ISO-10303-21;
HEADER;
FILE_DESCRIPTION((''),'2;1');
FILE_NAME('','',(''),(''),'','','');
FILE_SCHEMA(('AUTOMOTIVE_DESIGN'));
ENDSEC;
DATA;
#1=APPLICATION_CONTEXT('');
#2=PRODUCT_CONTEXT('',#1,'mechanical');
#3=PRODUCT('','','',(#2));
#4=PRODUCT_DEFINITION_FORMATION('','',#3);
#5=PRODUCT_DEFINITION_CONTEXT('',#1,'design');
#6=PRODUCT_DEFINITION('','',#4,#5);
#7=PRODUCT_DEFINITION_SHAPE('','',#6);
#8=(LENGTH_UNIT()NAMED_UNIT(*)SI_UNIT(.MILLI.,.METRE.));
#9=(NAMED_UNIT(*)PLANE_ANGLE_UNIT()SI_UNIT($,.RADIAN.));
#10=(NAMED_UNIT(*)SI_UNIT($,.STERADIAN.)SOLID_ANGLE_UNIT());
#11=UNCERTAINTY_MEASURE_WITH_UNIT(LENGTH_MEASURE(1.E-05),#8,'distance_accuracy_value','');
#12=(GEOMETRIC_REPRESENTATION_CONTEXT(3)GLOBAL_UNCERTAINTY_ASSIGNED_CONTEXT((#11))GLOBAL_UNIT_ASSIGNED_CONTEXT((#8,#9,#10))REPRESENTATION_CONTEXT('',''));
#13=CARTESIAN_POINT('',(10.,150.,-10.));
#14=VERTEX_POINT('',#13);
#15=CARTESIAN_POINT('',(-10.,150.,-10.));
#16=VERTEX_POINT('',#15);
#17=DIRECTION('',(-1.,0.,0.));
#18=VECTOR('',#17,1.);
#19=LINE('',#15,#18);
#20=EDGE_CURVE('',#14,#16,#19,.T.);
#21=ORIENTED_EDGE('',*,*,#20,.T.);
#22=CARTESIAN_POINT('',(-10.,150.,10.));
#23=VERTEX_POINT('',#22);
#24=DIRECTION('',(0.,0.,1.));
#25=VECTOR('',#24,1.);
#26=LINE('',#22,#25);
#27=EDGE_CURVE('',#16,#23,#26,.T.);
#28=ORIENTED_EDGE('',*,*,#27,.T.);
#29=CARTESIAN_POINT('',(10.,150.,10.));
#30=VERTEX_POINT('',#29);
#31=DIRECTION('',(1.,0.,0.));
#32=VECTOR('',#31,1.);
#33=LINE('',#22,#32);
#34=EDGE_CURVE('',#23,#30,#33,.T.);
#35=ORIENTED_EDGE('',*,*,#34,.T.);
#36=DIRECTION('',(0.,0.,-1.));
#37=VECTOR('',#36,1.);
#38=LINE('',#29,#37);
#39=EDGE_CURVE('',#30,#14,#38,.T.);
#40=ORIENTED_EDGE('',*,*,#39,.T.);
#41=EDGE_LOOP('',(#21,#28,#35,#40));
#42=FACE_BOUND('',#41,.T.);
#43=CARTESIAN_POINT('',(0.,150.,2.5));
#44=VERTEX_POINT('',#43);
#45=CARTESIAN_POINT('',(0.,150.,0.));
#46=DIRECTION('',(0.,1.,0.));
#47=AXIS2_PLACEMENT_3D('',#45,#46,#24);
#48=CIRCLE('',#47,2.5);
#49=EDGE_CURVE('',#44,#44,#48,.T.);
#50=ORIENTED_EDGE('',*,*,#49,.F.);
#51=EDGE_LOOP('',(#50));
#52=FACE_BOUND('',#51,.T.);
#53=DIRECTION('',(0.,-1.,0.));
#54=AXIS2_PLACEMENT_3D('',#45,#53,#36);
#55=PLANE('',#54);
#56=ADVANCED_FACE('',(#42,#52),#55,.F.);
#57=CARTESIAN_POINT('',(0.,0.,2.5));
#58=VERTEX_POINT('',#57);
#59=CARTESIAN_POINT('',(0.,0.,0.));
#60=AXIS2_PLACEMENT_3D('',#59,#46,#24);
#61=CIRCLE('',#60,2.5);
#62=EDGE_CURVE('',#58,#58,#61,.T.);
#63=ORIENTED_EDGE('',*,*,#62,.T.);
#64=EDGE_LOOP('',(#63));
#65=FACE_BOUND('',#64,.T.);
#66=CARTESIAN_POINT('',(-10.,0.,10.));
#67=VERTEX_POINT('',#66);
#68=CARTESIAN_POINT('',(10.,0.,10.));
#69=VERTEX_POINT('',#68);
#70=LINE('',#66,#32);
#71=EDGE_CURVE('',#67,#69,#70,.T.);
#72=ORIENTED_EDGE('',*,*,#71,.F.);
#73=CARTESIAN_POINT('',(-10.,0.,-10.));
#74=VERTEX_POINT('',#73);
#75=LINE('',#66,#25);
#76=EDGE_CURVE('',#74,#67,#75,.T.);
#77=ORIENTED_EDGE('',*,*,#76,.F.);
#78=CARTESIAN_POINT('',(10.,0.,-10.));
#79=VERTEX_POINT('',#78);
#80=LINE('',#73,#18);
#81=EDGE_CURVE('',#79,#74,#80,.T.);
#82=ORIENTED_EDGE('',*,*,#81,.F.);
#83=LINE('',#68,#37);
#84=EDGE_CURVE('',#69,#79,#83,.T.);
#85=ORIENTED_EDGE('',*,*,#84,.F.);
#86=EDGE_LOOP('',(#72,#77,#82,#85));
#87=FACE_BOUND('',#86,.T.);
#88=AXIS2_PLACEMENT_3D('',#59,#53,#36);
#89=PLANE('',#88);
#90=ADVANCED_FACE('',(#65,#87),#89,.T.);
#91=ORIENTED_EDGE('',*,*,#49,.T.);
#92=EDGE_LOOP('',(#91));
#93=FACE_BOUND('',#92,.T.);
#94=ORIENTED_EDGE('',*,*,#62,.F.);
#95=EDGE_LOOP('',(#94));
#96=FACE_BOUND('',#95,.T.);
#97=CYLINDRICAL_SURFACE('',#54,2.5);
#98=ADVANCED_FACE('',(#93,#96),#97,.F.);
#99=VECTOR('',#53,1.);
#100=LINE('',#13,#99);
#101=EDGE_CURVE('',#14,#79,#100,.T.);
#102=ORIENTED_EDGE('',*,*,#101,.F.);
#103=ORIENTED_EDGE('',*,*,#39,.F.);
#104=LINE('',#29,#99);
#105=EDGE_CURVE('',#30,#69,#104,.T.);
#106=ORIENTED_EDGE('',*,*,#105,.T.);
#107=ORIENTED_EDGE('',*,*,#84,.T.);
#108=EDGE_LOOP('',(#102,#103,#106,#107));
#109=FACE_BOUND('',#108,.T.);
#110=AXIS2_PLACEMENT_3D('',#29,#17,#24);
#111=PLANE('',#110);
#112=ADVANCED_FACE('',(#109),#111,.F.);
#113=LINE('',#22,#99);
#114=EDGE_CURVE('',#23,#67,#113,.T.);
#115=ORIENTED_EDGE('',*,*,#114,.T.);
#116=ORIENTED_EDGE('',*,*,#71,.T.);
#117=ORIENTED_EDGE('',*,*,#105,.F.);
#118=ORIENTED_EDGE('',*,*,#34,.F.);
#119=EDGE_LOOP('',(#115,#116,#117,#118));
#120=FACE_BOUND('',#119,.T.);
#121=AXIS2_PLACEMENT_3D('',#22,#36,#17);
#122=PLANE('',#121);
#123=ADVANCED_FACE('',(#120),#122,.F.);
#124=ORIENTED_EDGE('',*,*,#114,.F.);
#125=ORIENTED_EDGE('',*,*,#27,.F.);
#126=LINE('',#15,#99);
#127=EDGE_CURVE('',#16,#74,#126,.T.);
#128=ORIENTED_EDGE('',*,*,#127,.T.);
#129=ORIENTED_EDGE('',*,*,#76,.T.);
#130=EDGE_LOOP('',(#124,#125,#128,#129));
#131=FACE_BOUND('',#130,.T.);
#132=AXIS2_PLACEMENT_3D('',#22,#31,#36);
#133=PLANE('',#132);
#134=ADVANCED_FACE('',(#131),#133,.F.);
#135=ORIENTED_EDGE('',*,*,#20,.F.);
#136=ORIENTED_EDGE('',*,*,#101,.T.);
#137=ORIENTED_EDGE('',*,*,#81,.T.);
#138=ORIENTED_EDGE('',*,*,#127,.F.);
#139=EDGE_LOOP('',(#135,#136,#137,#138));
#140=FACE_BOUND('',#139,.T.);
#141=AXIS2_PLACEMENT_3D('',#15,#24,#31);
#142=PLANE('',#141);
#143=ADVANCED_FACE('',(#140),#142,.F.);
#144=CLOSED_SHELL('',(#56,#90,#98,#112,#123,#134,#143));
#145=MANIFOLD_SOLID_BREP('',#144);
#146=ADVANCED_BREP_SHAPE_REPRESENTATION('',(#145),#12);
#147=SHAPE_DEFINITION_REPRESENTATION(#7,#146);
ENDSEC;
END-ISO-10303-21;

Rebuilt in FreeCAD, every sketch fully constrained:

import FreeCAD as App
import Part
import Sketcher
from FreeCAD import Vector

doc = App.newDocument("Part")
params = doc.addObject("Spreadsheet::Sheet", "Params")
for row, (alias, value) in enumerate([
    ("sketch1_diameter", "5 mm"),
    ("sketch1_width", "20 mm"),
    ("pad1_length", "150 mm"),
], start=1):
    params.set(f"A{row}", alias)
    params.set(f"B{row}", "=" + value)
    params.setAlias(f"B{row}", alias)

body = doc.addObject("PartDesign::Body", "Body")

# Sketch on XZ plane
sketch1 = body.newObject("Sketcher::SketchObject", "Sketch")
sketch1.AttachmentSupport = (doc.getObject("XZ_Plane"), [""])
sketch1.MapMode = "FlatFace"
sketch1.addGeometry([
    Part.LineSegment(Vector(-10, -10, 0), Vector(-10, 10, 0)),  # 0
    Part.LineSegment(Vector(-10, 10, 0), Vector(10, 10, 0)),  # 1
    Part.LineSegment(Vector(10, 10, 0), Vector(10, -10, 0)),  # 2
    Part.LineSegment(Vector(10, -10, 0), Vector(-10, -10, 0)),  # 3
    Part.Circle(Vector(0, 0, 0), Vector(0, 0, 1), 2.5),  # 4
], False)
sketch1.addConstraint([
    Sketcher.Constraint("Coincident", 0, 2, 1, 1),
    Sketcher.Constraint("Coincident", 1, 2, 2, 1),
    Sketcher.Constraint("Coincident", 2, 2, 3, 1),
    Sketcher.Constraint("Coincident", 3, 2, 0, 1),
    Sketcher.Constraint("Vertical", 0),
    Sketcher.Constraint("Horizontal", 1),
    Sketcher.Constraint("Vertical", 2),
    Sketcher.Constraint("Horizontal", 3),
    Sketcher.Constraint("Coincident", 4, 3, -1, 1),
    Sketcher.Constraint("Symmetric", 0, 2, 2, 2, -1, 1),
    Sketcher.Constraint("Equal", 3, 0),
    Sketcher.Constraint("Diameter", 4, 5.0),
    Sketcher.Constraint("DistanceX", 1, 1, 1, 2, 20.0),
])
sketch1.setExpression("Constraints[11]", "Params.sketch1_diameter")
sketch1.setExpression("Constraints[12]", "Params.sketch1_width")
pad1 = body.newObject("PartDesign::Pad", "Pad")
pad1.Profile = sketch1
pad1.setExpression("Length", "Params.pad1_length")
pad1.Reversed = True

doc.recompute()
